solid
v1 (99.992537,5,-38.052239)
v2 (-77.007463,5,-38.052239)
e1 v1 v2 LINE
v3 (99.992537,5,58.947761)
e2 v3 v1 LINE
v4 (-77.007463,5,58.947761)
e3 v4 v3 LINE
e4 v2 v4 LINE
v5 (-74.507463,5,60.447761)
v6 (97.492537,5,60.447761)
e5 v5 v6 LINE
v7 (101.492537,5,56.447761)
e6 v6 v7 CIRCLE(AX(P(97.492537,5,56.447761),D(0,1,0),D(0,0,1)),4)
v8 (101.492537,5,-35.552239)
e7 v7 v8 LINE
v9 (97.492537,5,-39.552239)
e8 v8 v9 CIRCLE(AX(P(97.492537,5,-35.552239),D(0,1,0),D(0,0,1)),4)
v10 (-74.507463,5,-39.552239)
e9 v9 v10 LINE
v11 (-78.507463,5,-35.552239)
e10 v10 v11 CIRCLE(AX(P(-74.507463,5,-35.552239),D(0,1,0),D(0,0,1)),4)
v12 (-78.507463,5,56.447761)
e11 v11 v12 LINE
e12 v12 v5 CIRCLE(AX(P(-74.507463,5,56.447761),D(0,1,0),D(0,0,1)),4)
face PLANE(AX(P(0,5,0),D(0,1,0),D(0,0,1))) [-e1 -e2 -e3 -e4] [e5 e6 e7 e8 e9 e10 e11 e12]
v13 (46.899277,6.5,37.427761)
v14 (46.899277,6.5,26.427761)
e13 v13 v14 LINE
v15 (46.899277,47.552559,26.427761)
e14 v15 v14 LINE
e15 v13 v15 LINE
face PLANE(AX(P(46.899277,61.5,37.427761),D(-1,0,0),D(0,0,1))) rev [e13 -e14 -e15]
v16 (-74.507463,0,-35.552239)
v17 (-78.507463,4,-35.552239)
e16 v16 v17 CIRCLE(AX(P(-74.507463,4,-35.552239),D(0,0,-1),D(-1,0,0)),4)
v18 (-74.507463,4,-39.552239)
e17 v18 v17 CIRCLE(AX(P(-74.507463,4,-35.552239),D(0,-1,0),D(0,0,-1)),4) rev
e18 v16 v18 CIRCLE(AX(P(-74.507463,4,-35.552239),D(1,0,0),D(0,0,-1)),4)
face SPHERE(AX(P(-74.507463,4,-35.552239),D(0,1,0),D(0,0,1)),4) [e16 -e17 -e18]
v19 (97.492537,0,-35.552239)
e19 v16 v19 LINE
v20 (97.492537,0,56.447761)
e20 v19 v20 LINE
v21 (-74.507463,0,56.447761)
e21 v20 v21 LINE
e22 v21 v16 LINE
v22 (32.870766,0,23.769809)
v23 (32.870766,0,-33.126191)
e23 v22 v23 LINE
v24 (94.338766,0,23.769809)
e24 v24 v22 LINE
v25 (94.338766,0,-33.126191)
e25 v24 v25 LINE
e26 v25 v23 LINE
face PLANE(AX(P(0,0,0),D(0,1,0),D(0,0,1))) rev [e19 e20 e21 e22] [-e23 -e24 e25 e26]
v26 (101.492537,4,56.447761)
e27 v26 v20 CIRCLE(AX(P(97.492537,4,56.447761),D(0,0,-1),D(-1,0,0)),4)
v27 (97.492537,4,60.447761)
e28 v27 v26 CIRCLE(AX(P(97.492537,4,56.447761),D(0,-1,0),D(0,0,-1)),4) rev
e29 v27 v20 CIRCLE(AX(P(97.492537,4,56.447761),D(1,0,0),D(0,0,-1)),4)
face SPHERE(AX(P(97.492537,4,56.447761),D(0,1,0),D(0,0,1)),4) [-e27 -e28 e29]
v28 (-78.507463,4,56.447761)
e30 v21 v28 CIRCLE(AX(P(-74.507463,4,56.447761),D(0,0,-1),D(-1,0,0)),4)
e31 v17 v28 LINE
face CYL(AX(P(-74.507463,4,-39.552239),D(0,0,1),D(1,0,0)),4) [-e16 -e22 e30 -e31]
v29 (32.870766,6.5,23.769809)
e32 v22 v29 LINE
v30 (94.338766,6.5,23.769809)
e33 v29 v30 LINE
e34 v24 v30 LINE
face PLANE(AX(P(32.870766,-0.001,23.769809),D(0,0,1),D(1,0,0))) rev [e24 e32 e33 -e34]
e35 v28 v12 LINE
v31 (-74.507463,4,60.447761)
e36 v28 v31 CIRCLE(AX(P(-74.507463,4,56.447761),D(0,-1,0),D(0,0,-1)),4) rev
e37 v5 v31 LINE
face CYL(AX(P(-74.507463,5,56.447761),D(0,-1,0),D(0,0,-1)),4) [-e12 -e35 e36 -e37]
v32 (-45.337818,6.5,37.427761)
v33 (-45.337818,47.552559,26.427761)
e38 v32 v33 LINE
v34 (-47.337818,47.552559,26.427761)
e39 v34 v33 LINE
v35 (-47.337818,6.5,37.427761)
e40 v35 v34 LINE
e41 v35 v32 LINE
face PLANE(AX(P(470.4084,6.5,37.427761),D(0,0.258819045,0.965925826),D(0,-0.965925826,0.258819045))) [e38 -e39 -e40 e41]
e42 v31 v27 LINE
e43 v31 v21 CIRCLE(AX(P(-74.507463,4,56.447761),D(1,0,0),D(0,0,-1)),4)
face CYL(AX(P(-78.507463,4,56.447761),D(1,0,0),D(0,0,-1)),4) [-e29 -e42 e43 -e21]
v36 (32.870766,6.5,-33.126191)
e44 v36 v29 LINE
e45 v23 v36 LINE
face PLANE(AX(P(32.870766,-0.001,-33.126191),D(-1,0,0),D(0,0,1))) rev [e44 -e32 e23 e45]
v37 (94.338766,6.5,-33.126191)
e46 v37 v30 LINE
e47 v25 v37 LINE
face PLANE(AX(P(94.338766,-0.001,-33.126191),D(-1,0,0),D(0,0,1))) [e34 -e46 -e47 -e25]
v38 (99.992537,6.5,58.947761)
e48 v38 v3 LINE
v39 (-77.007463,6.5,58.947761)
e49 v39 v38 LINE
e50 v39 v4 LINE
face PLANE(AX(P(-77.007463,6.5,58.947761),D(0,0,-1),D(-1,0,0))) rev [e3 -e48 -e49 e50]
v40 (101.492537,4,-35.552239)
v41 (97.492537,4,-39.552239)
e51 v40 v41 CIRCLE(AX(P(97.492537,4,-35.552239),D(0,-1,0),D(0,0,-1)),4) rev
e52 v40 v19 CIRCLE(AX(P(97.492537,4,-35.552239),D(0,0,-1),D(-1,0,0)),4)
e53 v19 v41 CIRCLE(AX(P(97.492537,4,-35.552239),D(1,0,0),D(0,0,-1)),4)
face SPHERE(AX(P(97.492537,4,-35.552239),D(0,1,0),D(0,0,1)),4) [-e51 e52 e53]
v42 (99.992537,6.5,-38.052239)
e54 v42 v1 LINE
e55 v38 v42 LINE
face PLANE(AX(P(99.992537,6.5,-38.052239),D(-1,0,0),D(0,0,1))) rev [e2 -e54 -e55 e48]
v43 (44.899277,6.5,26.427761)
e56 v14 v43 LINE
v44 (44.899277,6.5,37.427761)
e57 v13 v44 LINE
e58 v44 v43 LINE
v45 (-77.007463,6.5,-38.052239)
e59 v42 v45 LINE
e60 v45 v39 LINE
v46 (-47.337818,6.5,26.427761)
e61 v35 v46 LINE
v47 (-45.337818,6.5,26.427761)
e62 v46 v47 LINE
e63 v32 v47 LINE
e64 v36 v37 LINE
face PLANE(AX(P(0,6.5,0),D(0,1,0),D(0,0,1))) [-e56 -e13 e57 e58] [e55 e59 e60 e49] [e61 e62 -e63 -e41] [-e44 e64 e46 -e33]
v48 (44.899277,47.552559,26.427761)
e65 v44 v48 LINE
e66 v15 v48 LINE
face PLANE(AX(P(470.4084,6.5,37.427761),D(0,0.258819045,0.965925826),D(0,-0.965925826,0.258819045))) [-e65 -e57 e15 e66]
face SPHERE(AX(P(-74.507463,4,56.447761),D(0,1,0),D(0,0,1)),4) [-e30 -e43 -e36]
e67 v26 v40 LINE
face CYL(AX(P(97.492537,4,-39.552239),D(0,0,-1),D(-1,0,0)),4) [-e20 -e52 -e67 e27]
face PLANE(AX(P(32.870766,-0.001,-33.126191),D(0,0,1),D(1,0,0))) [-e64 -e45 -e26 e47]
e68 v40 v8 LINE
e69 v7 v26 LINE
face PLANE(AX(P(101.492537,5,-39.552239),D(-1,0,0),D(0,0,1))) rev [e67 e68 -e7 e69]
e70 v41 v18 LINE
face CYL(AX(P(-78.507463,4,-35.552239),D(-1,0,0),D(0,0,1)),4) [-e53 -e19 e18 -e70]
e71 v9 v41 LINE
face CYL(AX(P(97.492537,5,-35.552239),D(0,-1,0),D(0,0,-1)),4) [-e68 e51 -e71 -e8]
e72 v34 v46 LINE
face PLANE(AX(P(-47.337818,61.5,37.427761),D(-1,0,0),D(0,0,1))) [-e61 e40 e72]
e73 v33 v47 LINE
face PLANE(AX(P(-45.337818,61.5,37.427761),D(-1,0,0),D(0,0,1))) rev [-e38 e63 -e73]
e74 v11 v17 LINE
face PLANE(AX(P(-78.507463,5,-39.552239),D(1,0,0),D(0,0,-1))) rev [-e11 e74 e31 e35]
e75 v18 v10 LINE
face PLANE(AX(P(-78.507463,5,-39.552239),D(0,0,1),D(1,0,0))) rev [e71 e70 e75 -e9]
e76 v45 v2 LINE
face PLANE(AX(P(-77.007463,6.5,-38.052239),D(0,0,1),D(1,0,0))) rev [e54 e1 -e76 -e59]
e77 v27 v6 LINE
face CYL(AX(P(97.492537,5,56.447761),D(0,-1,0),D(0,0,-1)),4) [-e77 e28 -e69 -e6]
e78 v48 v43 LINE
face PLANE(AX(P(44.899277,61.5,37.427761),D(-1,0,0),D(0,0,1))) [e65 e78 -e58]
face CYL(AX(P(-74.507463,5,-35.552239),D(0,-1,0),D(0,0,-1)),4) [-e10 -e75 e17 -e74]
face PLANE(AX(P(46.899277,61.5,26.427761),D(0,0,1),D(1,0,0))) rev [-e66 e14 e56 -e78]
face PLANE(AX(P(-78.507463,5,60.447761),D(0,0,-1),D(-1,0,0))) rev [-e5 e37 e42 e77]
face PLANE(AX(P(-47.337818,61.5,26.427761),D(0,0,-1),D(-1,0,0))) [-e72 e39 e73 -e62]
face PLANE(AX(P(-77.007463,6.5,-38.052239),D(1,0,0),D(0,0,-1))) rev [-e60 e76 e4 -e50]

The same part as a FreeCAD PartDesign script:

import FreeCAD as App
import Part
import Sketcher
from FreeCAD import Vector
Q = App.Units.Quantity


def edges_at(feature, points):
    """Names of the edges that pass closest to the given points."""
    edges = feature.Shape.Edges
    near = lambda p: min(range(len(edges)), key=lambda i: edges[i].distToShape(Part.Vertex(*p))[0])
    return sorted({f"Edge{near(p) + 1}" for p in points})

doc = App.newDocument("Part")
body = doc.addObject("PartDesign::Body", "Body")

sketch1 = body.newObject("Sketcher::SketchObject", "Sketch")
sketch1.AttachmentSupport = (doc.getObject("XZ_Plane"), [""])
sketch1.MapMode = "FlatFace"
sketch1.addGeometry(Part.LineSegment(Vector(-79, -40, 0), Vector(-79, 60, 0)), False)
sketch1.addGeometry(Part.LineSegment(Vector(-79, 60, 0), Vector(101, 60, 0)), False)
sketch1.addGeometry(Part.LineSegment(Vector(101, 60, 0), Vector(101, -40, 0)), False)
sketch1.addGeometry(Part.LineSegment(Vector(101, -40, 0), Vector(-79, -40, 0)), False)
sketch1.addConstraint(Sketcher.Constraint("Coincident", 0, 2, 1, 1))
sketch1.addConstraint(Sketcher.Constraint("Coincident", 1, 2, 2, 1))
sketch1.addConstraint(Sketcher.Constraint("Coincident", 2, 2, 3, 1))
sketch1.addConstraint(Sketcher.Constraint("Coincident", 3, 2, 0, 1))
sketch1.addConstraint(Sketcher.Constraint("Vertical", 0))
sketch1.addConstraint(Sketcher.Constraint("Horizontal", 1))
sketch1.addConstraint(Sketcher.Constraint("Vertical", 2))
sketch1.addConstraint(Sketcher.Constraint("Horizontal", 3))
sketch1.addConstraint(Sketcher.Constraint("DistanceX", 1, 1, 1, 2, Q("180 mm")))
sketch1.addConstraint(Sketcher.Constraint("DistanceY", 0, 1, 0, 2, Q("100 mm")))
sketch1.addConstraint(Sketcher.Constraint("DistanceY", -1, 1, 0, 2, Q("60.447761 mm")))
sketch1.addConstraint(Sketcher.Constraint("DistanceX", 0, 2, -1, 1, Q("78.507463 mm")))
pad1 = body.newObject("PartDesign::Pad", "Pad")
pad1.Profile = sketch1
pad1.Length = 5
pad1.Reversed = True

sketch2 = body.newObject("Sketcher::SketchObject", "Sketch001")
sketch2.AttachmentSupport = (doc.getObject("XZ_Plane"), [""])
sketch2.MapMode = "FlatFace"
sketch2.AttachmentOffset = App.Placement(Vector(0, 0, -5), App.Rotation())
sketch2.addGeometry(Part.LineSegment(Vector(-77, -38, 0), Vector(-77, 59, 0)), False)
sketch2.addGeometry(Part.LineSegment(Vector(-77, 59, 0), Vector(100, 59, 0)), False)
sketch2.addGeometry(Part.LineSegment(Vector(100, 59, 0), Vector(100, -38, 0)), False)
sketch2.addGeometry(Part.LineSegment(Vector(100, -38, 0), Vector(-77, -38, 0)), False)
sketch2.addConstraint(Sketcher.Constraint("Coincident", 0, 2, 1, 1))
sketch2.addConstraint(Sketcher.Constraint("Coincident", 1, 2, 2, 1))
sketch2.addConstraint(Sketcher.Constraint("Coincident", 2, 2, 3, 1))
sketch2.addConstraint(Sketcher.Constraint("Coincident", 3, 2, 0, 1))
sketch2.addConstraint(Sketcher.Constraint("Vertical", 0))
sketch2.addConstraint(Sketcher.Constraint("Horizontal", 1))
sketch2.addConstraint(Sketcher.Constraint("Vertical", 2))
sketch2.addConstraint(Sketcher.Constraint("Horizontal", 3))
sketch2.addConstraint(Sketcher.Constraint("DistanceX", 1, 1, 1, 2, Q("177 mm")))
sketch2.addConstraint(Sketcher.Constraint("DistanceY", 0, 1, 0, 2, Q("97 mm")))
sketch2.addConstraint(Sketcher.Constraint("DistanceY", -1, 1, 0, 2, Q("58.947761 mm")))
sketch2.addConstraint(Sketcher.Constraint("DistanceX", 0, 2, -1, 1, Q("77.007463 mm")))
pad2 = body.newObject("PartDesign::Pad", "Pad001")
pad2.Profile = sketch2
pad2.Length = 1.5
pad2.Reversed = True

sketch3 = body.newObject("Sketcher::SketchObject", "Sketch002")
sketch3.AttachmentSupport = (doc.getObject("XZ_Plane"), [""])
sketch3.MapMode = "FlatFace"
sketch3.AttachmentOffset = App.Placement(Vector(0, 0, -6.5), App.Rotation())
sketch3.addGeometry(Part.LineSegment(Vector(33, -33, 0), Vector(33, 24, 0)), False)
sketch3.addGeometry(Part.LineSegment(Vector(33, 24, 0), Vector(94, 24, 0)), False)
sketch3.addGeometry(Part.LineSegment(Vector(94, 24, 0), Vector(94, -33, 0)), False)
sketch3.addGeometry(Part.LineSegment(Vector(94, -33, 0), Vector(33, -33, 0)), False)
sketch3.addConstraint(Sketcher.Constraint("Coincident", 0, 2, 1, 1))
sketch3.addConstraint(Sketcher.Constraint("Coincident", 1, 2, 2, 1))
sketch3.addConstraint(Sketcher.Constraint("Coincident", 2, 2, 3, 1))
sketch3.addConstraint(Sketcher.Constraint("Coincident", 3, 2, 0, 1))
sketch3.addConstraint(Sketcher.Constraint("Vertical", 0))
sketch3.addConstraint(Sketcher.Constraint("Horizontal", 1))
sketch3.addConstraint(Sketcher.Constraint("Vertical", 2))
sketch3.addConstraint(Sketcher.Constraint("Horizontal", 3))
sketch3.addConstraint(Sketcher.Constraint("DistanceX", 1, 1, 1, 2, Q("61.468 mm")))
sketch3.addConstraint(Sketcher.Constraint("DistanceY", 0, 1, 0, 2, Q("56.896 mm")))
sketch3.addConstraint(Sketcher.Constraint("DistanceY", -1, 1, 0, 2, Q("23.769809 mm")))
sketch3.addConstraint(Sketcher.Constraint("DistanceX", -1, 1, 0, 2, Q("32.870766 mm")))
pocket1 = body.newObject("PartDesign::Pocket", "Pocket")
pocket1.Profile = sketch3
pocket1.Type = "UpToFirst"
pocket1.Reversed = True
doc.recompute()

fillet = body.newObject("PartDesign::Fillet", "Fillet")
fillet.Base = (pocket1, edges_at(pocket1, [
    (-78.507, 2.5, -39.552),
    (101.493, 2.5, -39.552),
    (101.493, 2.5, 60.448),
    (-78.507, 2.5, 60.448),
]))
fillet.Radius = 4
doc.recompute()

fillet2 = body.newObject("PartDesign::Fillet", "Fillet001")
fillet2.Base = (fillet, edges_at(fillet, [
    (11.493, 0, 60.448),
    (-78.507, 0, 10.448),
    (11.493, 0, -39.552),
    (101.493, 0, 10.448),
    (100.321, 0, 59.276),
    (100.321, 0, -38.381),
    (-77.336, 0, -38.381),
    (-77.336, 0, 59.276),
]))
fillet2.Radius = 4

sketch4 = body.newObject("Sketcher::SketchObject", "Sketch003")
sketch4.AttachmentSupport = (doc.getObject("XZ_Plane"), [""])
sketch4.MapMode = "FlatFace"
sketch4.AttachmentOffset = App.Placement(Vector(0, 0, -6.5), App.Rotation())
sketch4.addGeometry(Part.LineSegment(Vector(-47.3, 26.4, 0), Vector(-47.3, 37.4, 0)), False)
sketch4.addGeometry(Part.LineSegment(Vector(-47.3, 37.4, 0), Vector(-45.3, 37.4, 0)), False)
sketch4.addGeometry(Part.LineSegment(Vector(-45.3, 37.4, 0), Vector(-45.3, 26.4, 0)), False)
sketch4.addGeometry(Part.LineSegment(Vector(-45.3, 26.4, 0), Vector(-47.3, 26.4, 0)), False)
sketch4.addConstraint(Sketcher.Constraint("Coincident", 0, 2, 1, 1))
sketch4.addConstraint(Sketcher.Constraint("Coincident", 1, 2, 2, 1))
sketch4.addConstraint(Sketcher.Constraint("Coincident", 2, 2, 3, 1))
sketch4.addConstraint(Sketcher.Constraint("Coincident", 3, 2, 0, 1))
sketch4.addConstraint(Sketcher.Constraint("Vertical", 0))
sketch4.addConstraint(Sketcher.Constraint("Horizontal", 1))
sketch4.addConstraint(Sketcher.Constraint("Vertical", 2))
sketch4.addConstraint(Sketcher.Constraint("Horizontal", 3))
sketch4.addConstraint(Sketcher.Constraint("DistanceX", 1, 1, 1, 2, Q("2 mm")))
sketch4.addConstraint(Sketcher.Constraint("DistanceY", 0, 1, 0, 2, Q("11 mm")))
sketch4.addConstraint(Sketcher.Constraint("DistanceY", -1, 1, 0, 2, Q("37.427761 mm")))
sketch4.addConstraint(Sketcher.Constraint("DistanceX", 0, 2, -1, 1, Q("47.337818 mm")))
pad3 = body.newObject("PartDesign::Pad", "Pad002")
pad3.Profile = sketch4
pad3.Length = 55
pad3.Reversed = True

sketch5 = body.newObject("Sketcher::SketchObject", "Sketch004")
sketch5.AttachmentSupport = (doc.getObject("XZ_Plane"), [""])
sketch5.MapMode = "FlatFace"
sketch5.AttachmentOffset = App.Placement(Vector(0, 0, -6.5), App.Rotation())
sketch5.addGeometry(Part.LineSegment(Vector(44.9, 26.4, 0), Vector(44.9, 37.4, 0)), False)
sketch5.addGeometry(Part.LineSegment(Vector(44.9, 37.4, 0), Vector(46.9, 37.4, 0)), False)
sketch5.addGeometry(Part.LineSegment(Vector(46.9, 37.4, 0), Vector(46.9, 26.4, 0)), False)
sketch5.addGeometry(Part.LineSegment(Vector(46.9, 26.4, 0), Vector(44.9, 26.4, 0)), False)
sketch5.addConstraint(Sketcher.Constraint("Coincident", 0, 2, 1, 1))
sketch5.addConstraint(Sketcher.Constraint("Coincident", 1, 2, 2, 1))
sketch5.addConstraint(Sketcher.Constraint("Coincident", 2, 2, 3, 1))
sketch5.addConstraint(Sketcher.Constraint("Coincident", 3, 2, 0, 1))
sketch5.addConstraint(Sketcher.Constraint("Vertical", 0))
sketch5.addConstraint(Sketcher.Constraint("Horizontal", 1))
sketch5.addConstraint(Sketcher.Constraint("Vertical", 2))
sketch5.addConstraint(Sketcher.Constraint("Horizontal", 3))
sketch5.addConstraint(Sketcher.Constraint("DistanceX", 1, 1, 1, 2, Q("2 mm")))
sketch5.addConstraint(Sketcher.Constraint("DistanceY", 0, 1, 0, 2, Q("11 mm")))
sketch5.addConstraint(Sketcher.Constraint("DistanceY", -1, 1, 0, 2, Q("37.427761 mm")))
sketch5.addConstraint(Sketcher.Constraint("DistanceX", -1, 1, 0, 2, Q("44.899277 mm")))
pad4 = body.newObject("PartDesign::Pad", "Pad003")
pad4.Profile = sketch5
pad4.Length = 55
pad4.Reversed = True

sketch6 = body.newObject("Sketcher::SketchObject", "Sketch005")
sketch6.AttachmentSupport = (doc.getObject("YZ_Plane"), [""])
sketch6.MapMode = "FlatFace"
sketch6.AttachmentOffset = App.Placement(Vector(0, 0, 46.899277), App.Rotation())
sketch6.addGeometry(Part.LineSegment(Vector(62, 37, 0), Vector(6, 37, 0)), False)
sketch6.addGeometry(Part.LineSegment(Vector(6, 37, 0), Vector(48, 26, 0)), False)
sketch6.addGeometry(Part.LineSegment(Vector(48, 26, 0), Vector(62, 26, 0)), False)
sketch6.addGeometry(Part.LineSegment(Vector(62, 26, 0), Vector(62, 37, 0)), False)
sketch6.addConstraint(Sketcher.Constraint("Coincident", 0, 2, 1, 1))
sketch6.addConstraint(Sketcher.Constraint("Coincident", 1, 2, 2, 1))
sketch6.addConstraint(Sketcher.Constraint("Coincident", 2, 2, 3, 1))
sketch6.addConstraint(Sketcher.Constraint("Coincident", 3, 2, 0, 1))
sketch6.addConstraint(Sketcher.Constraint("Horizontal", 0))
sketch6.addConstraint(Sketcher.Constraint("Horizontal", 2))
sketch6.addConstraint(Sketcher.Constraint("Vertical", 3))
sketch6.addConstraint(Sketcher.Constraint("DistanceX", 0, 2, 0, 1, Q("55 mm")))
sketch6.addConstraint(Sketcher.Constraint("DistanceY", 3, 1, 3, 2, Q("11 mm")))
sketch6.addConstraint(Sketcher.Constraint("Angle", 1, Q("-15 deg")))
sketch6.addConstraint(Sketcher.Constraint("DistanceX", -1, 1, 0, 2, Q("6.5 mm")))
sketch6.addConstraint(Sketcher.Constraint("DistanceY", -1, 1, 0, 2, Q("37.427761 mm")))
pocket2 = body.newObject("PartDesign::Pocket", "Pocket001")
pocket2.Profile = sketch6
pocket2.Type = "ThroughAll"
pocket2.Midplane = True

doc.recompute()
